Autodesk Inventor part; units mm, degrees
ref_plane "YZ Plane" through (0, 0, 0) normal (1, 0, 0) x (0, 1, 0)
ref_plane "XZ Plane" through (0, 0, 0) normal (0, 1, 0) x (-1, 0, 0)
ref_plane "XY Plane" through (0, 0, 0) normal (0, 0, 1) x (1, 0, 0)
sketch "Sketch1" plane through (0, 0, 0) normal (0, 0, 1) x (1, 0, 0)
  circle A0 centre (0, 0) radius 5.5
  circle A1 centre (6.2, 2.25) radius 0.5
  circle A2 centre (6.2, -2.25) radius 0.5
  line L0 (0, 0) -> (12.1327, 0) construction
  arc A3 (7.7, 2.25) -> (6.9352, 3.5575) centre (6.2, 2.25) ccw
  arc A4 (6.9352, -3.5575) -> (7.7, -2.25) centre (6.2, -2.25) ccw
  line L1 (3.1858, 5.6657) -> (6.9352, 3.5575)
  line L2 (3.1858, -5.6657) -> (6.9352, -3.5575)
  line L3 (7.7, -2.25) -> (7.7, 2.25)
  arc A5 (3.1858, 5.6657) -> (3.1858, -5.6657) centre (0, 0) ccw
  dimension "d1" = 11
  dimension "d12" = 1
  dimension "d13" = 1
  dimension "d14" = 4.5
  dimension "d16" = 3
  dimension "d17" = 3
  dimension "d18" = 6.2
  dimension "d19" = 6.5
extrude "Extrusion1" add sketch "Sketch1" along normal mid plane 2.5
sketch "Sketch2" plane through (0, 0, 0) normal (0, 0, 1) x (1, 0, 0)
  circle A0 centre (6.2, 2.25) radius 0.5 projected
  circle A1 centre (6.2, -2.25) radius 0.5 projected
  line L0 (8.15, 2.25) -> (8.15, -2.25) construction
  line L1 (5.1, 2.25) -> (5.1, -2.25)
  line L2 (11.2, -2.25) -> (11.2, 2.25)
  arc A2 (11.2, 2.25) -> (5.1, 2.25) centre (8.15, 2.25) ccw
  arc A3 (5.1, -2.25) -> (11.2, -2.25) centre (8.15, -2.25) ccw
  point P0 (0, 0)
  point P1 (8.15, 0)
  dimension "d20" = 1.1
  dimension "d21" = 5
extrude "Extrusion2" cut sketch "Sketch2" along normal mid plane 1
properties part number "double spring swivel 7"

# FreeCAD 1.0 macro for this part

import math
import FreeCAD as App
import Part
import Sketcher

V = App.Vector
Q = App.Units.Quantity

doc = App.newDocument("Part")
params = doc.addObject("Spreadsheet::Sheet", "Params")
for row, (alias, value) in enumerate([
    ("sketch1_diameter", "11 mm"),
    ("sketch1_diameter2", "1 mm"),
    ("sketch1_radius", "1.5 mm"),
    ("sketch1_radius2", "6.5 mm"),
    ("sketch1_height", "4.5 mm"),
    ("pad1_length", "2.5 mm"),
    ("sketch2_diameter", "1 mm"),
    ("sketch2_height", "4.5 mm"),
    ("pocket1_length", "1 mm"),
], start=1):
    params.set(f"A{row}", alias)
    params.set(f"B{row}", "=" + value)
    params.setAlias(f"B{row}", alias)

body = doc.addObject("PartDesign::Body", "Body")

# Sketch on XY plane
sketch1 = body.newObject("Sketcher::SketchObject", "Sketch")
sketch1.AttachmentSupport = (doc.getObject("XY_Plane"), [""])
sketch1.MapMode = "FlatFace"
sketch1.addGeometry(Part.LineSegment(V(7.7, -2.2, 0), V(7.7, 2.2, 0)), False)
sketch1.addGeometry(Part.ArcOfCircle(Part.Circle(V(6.2, 2.2, 0), V(0, 0, 1), 1.5), math.radians(0), math.radians(61)), False)
sketch1.addGeometry(Part.LineSegment(V(6.9, 3.6, 0), V(3.2, 5.7, 0)), False)
sketch1.addGeometry(Part.ArcOfCircle(Part.Circle(V(0, 0, 0), V(0, 0, 1), 6.5), math.radians(61), math.radians(299)), False)
sketch1.addGeometry(Part.LineSegment(V(3.2, -5.7, 0), V(6.9, -3.6, 0)), False)
sketch1.addGeometry(Part.ArcOfCircle(Part.Circle(V(6.2, -2.2, 0), V(0, 0, 1), 1.5), math.radians(-61), math.radians(0)), False)
sketch1.addGeometry(Part.Circle(V(0, 0, 0), V(0, 0, 1), 5.5), False)
sketch1.addGeometry(Part.Circle(V(6.2, -2.2, 0), V(0, 0, 1), 0.5), False)
sketch1.addGeometry(Part.Circle(V(6.2, 2.2, 0), V(0, 0, 1), 0.5), False)
sketch1.addConstraint(Sketcher.Constraint("Tangent", 0, 2, 1, 1))
sketch1.addConstraint(Sketcher.Constraint("Tangent", 1, 2, 2, 1))
sketch1.addConstraint(Sketcher.Constraint("Tangent", 2, 2, 3, 1))
sketch1.addConstraint(Sketcher.Constraint("Tangent", 3, 2, 4, 1))
sketch1.addConstraint(Sketcher.Constraint("Tangent", 4, 2, 5, 1))
sketch1.addConstraint(Sketcher.Constraint("Tangent", 5, 2, 0, 1))
sketch1.addConstraint(Sketcher.Constraint("Vertical", 0))
sketch1.addConstraint(Sketcher.Constraint("Coincident", 3, 3, -1, 1))
sketch1.addConstraint(Sketcher.Constraint("Coincident", 6, 3, -1, 1))
sketch1.addConstraint(Sketcher.Constraint("Coincident", 7, 3, 5, 3))
sketch1.addConstraint(Sketcher.Constraint("Coincident", 8, 3, 1, 3))
sketch1.addConstraint(Sketcher.Constraint("Equal", 1, 5))
sketch1.addConstraint(Sketcher.Constraint("Equal", 7, 8))
sketch1.addConstraint(Sketcher.Constraint("Vertical", 2, 2, 3, 2))
sketch1.addConstraint(Sketcher.Constraint("Diameter", 6, Q("11 mm")))
sketch1.addConstraint(Sketcher.Constraint("Diameter", 7, Q("1 mm")))
sketch1.addConstraint(Sketcher.Constraint("Radius", 1, Q("1.5 mm")))
sketch1.addConstraint(Sketcher.Constraint("Radius", 3, Q("6.5 mm")))
sketch1.addConstraint(Sketcher.Constraint("DistanceY", 0, 1, 0, 2, Q("4.5 mm")))
sketch1.addConstraint(Sketcher.Constraint("DistanceX", -1, 1, 1, 3, Q("6.2 mm")))
sketch1.setExpression("Constraints[14]", "Params.sketch1_diameter")
sketch1.setExpression("Constraints[15]", "Params.sketch1_diameter2")
sketch1.setExpression("Constraints[16]", "Params.sketch1_radius")
sketch1.setExpression("Constraints[17]", "Params.sketch1_radius2")
sketch1.setExpression("Constraints[18]", "Params.sketch1_height")
pad1 = body.newObject("PartDesign::Pad", "Pad")
pad1.Profile = sketch1
pad1.setExpression("Length", "Params.pad1_length")
pad1.Midplane = True

# Sketch on XY plane
sketch2 = body.newObject("Sketcher::SketchObject", "Sketch001")
sketch2.AttachmentSupport = (doc.getObject("XY_Plane"), [""])
sketch2.MapMode = "FlatFace"
sketch2.addGeometry(Part.ArcOfCircle(Part.Circle(V(8.2, 2.2, 0), V(0, 0, 1), 3), math.radians(0), math.radians(180)), False)
sketch2.addGeometry(Part.LineSegment(V(5.1, 2.2, 0), V(5.1, -2.2, 0)), False)
sketch2.addGeometry(Part.ArcOfCircle(Part.Circle(V(8.2, -2.2, 0), V(0, 0, 1), 3.1), math.radians(180), math.radians(360)), False)
sketch2.addGeometry(Part.LineSegment(V(11.2, -2.2, 0), V(11.2, 2.2, 0)), False)
sketch2.addGeometry(Part.Circle(V(6.2, -2.2, 0), V(0, 0, 1), 0.5), False)
sketch2.addGeometry(Part.Circle(V(6.2, 2.2, 0), V(0, 0, 1), 0.5), False)
sketch2.addConstraint(Sketcher.Constraint("Tangent", 0, 2, 1, 1))
sketch2.addConstraint(Sketcher.Constraint("Tangent", 1, 2, 2, 1))
sketch2.addConstraint(Sketcher.Constraint("Tangent", 2, 2, 3, 1))
sketch2.addConstraint(Sketcher.Constraint("Tangent", 3, 2, 0, 1))
sketch2.addConstraint(Sketcher.Constraint("Vertical", 1))
sketch2.addConstraint(Sketcher.Constraint("Vertical", 3))
sketch2.addConstraint(Sketcher.Constraint("Equal", 4, 5))
sketch2.addConstraint(Sketcher.Constraint("Symmetric", 4, 3, 5, 3, -1))
sketch2.addConstraint(Sketcher.Constraint("Horizontal", 2, 3, 4, 3))
sketch2.addConstraint(Sketcher.Constraint("Horizontal", 0, 3, 5, 3))
sketch2.addConstraint(Sketcher.Constraint("Diameter", 4, Q("1 mm")))
sketch2.addConstraint(Sketcher.Constraint("DistanceX", 4, 3, 2, 2, Q("5 mm")))
sketch2.addConstraint(Sketcher.Constraint("DistanceX", 0, 2, 5, 3, Q("1.1 mm")))
sketch2.addConstraint(Sketcher.Constraint("DistanceY", 1, 2, 1, 1, Q("4.5 mm")))
sketch2.addConstraint(Sketcher.Constraint("DistanceX", -1, 1, 4, 3, Q("6.2 mm")))
sketch2.setExpression("Constraints[10]", "Params.sketch2_diameter")
sketch2.setExpression("Constraints[13]", "Params.sketch2_height")
pocket1 = body.newObject("PartDesign::Pocket", "Pocket")
pocket1.Profile = sketch2
pocket1.setExpression("Length", "Params.pocket1_length")
pocket1.Midplane = True

doc.recompute()
